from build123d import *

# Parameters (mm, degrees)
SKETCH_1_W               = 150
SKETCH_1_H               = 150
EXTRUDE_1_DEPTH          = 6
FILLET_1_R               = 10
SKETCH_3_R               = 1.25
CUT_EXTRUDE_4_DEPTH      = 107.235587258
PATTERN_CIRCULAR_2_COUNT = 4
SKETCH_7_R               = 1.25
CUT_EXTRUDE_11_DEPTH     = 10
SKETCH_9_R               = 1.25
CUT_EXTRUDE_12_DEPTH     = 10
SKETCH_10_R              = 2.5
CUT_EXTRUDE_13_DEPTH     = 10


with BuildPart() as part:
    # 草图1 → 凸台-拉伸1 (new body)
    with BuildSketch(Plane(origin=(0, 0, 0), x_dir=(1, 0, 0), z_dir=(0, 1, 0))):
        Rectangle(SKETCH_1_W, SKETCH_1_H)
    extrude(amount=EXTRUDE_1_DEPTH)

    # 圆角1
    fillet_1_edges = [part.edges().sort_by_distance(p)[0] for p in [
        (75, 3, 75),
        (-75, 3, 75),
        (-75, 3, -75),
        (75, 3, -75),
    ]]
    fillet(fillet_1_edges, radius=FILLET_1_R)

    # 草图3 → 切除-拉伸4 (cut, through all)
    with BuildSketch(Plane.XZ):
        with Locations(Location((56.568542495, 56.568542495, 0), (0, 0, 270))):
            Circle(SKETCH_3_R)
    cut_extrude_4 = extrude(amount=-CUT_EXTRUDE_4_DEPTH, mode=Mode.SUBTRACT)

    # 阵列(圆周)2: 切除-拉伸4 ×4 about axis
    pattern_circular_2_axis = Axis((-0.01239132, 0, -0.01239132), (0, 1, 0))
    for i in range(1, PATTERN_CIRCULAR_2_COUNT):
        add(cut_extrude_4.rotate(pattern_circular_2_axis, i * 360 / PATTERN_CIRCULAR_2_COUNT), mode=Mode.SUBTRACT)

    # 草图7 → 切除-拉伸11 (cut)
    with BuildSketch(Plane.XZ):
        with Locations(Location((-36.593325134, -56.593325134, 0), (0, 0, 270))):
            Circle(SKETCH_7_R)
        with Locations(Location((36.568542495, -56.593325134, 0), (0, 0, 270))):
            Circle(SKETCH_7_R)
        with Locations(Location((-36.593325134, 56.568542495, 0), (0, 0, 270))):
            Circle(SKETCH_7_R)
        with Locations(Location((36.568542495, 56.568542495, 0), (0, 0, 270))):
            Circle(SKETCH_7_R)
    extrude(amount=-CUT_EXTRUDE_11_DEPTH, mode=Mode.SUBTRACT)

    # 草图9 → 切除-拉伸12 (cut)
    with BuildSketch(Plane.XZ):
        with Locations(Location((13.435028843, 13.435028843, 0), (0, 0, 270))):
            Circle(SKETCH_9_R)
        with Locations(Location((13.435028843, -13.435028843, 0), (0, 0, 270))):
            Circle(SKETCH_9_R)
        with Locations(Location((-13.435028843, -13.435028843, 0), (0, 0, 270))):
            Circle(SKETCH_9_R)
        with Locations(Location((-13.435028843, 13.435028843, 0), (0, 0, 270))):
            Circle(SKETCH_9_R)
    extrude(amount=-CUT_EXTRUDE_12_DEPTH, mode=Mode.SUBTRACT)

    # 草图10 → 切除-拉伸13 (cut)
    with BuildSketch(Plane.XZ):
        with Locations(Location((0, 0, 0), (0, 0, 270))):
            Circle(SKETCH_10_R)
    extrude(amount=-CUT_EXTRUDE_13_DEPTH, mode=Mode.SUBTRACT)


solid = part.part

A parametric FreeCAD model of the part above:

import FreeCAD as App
import Part
import Sketcher
from FreeCAD import Vector
Q = App.Units.Quantity


def edges_at(feature, points):
    """Names of the edges that pass closest to the given points."""
    edges = feature.Shape.Edges
    near = lambda p: min(range(len(edges)), key=lambda i: edges[i].distToShape(Part.Vertex(*p))[0])
    return sorted({f"Edge{near(p) + 1}" for p in points})


def add_polygon(sketch, points):
    """Adds a closed chain of lines whose ends are joined by coincident constraints."""
    first, n = sketch.GeometryCount, len(points)
    for a, b in zip(points, points[1:] + points[:1]):
        sketch.addGeometry(Part.LineSegment(App.Vector(*a, 0), App.Vector(*b, 0)), False)
    for i in range(n):
        sketch.addConstraint(Sketcher.Constraint("Coincident", first + i, 2, first + (i + 1) % n, 1))

doc = App.newDocument("Part")
body = doc.addObject("PartDesign::Body", "Body")

sketch1 = doc.addObject("Sketcher::SketchObject", "Sketch")
body.addObject(sketch1)
sketch1.AttachmentSupport = (doc.XZ_Plane, [""])
sketch1.MapMode = "FlatFace"
add_polygon(sketch1, [(-75, -75), (-75, 75), (75, 75), (75, -75)])
sketch1.addConstraint(Sketcher.Constraint("Vertical", 0))
sketch1.addConstraint(Sketcher.Constraint("Horizontal", 1))
sketch1.addConstraint(Sketcher.Constraint("Vertical", 2))
sketch1.addConstraint(Sketcher.Constraint("Horizontal", 3))
sketch1.addConstraint(Sketcher.Constraint("Symmetric", 0, 2, 2, 2, -1, 1))
sketch1.addConstraint(Sketcher.Constraint("Equal", 3, 0))
sketch1.addConstraint(Sketcher.Constraint("DistanceX", 1, 1, 1, 2, Q("150 mm")))
pad1 = doc.addObject("PartDesign::Pad", "Pad")
body.addObject(pad1)
pad1.Profile = sketch1
pad1.Length = 6
pad1.Reversed = True
doc.recompute()

fillet = doc.addObject("PartDesign::Fillet", "Fillet")
body.addObject(fillet)
fillet.Base = (pad1, edges_at(pad1, [
    (75, 3, 75),
    (-75, 3, 75),
    (-75, 3, -75),
    (75, 3, -75),
]))
fillet.Radius = 10

sketch2 = doc.addObject("Sketcher::SketchObject", "Sketch001")
body.addObject(sketch2)
sketch2.AttachmentSupport = (doc.XZ_Plane, [""])
sketch2.MapMode = "FlatFace"
sketch2.addGeometry(Part.Circle(Vector(56.6, 56.6, 0), Vector(0, 0, 1), 1.2), False)
sketch2.addConstraint(Sketcher.Constraint("Diameter", 0, Q("2.5 mm")))
sketch2.addConstraint(Sketcher.Constraint("DistanceX", -1, 1, 0, 3, Q("56.568542 mm")))
sketch2.addConstraint(Sketcher.Constraint("DistanceY", -1, 1, 0, 3, Q("56.568542 mm")))
pocket1 = doc.addObject("PartDesign::Pocket", "Pocket")
body.addObject(pocket1)
pocket1.Profile = sketch2
pocket1.Type = "ThroughAll"
doc.recompute()

datumline = doc.addObject("PartDesign::Line", "DatumLine")
body.addObject(datumline)
datumline.Placement = App.Placement(Vector(-0.012391, 0, -0.012391), App.Rotation(Vector(0, 0, 1), Vector(0, 1, 0)))
polarpattern = doc.addObject("PartDesign::PolarPattern", "PolarPattern")
body.addObject(polarpattern)
polarpattern.Originals = [pocket1]
polarpattern.Axis = (datumline, [""])
polarpattern.Angle = 360
polarpattern.Occurrences = 4
body.Tip = polarpattern

sketch3 = doc.addObject("Sketcher::SketchObject", "Sketch002")
body.addObject(sketch3)
sketch3.AttachmentSupport = (doc.XZ_Plane, [""])
sketch3.MapMode = "FlatFace"
sketch3.addGeometry(Part.Circle(Vector(-36.6, -56.6, 0), Vector(0, 0, 1), 1.2), False)
sketch3.addGeometry(Part.Circle(Vector(36.6, -56.6, 0), Vector(0, 0, 1), 1.2), False)
sketch3.addGeometry(Part.Circle(Vector(-36.6, 56.6, 0), Vector(0, 0, 1), 1.2), False)
sketch3.addGeometry(Part.Circle(Vector(36.6, 56.6, 0), Vector(0, 0, 1), 1.2), False)
sketch3.addConstraint(Sketcher.Constraint("Equal", 0, 1))
sketch3.addConstraint(Sketcher.Constraint("Equal", 1, 2))
sketch3.addConstraint(Sketcher.Constraint("Equal", 2, 3))
sketch3.addConstraint(Sketcher.Constraint("Horizontal", 0, 3, 1, 3))
sketch3.addConstraint(Sketcher.Constraint("Horizontal", 2, 3, 3, 3))
sketch3.addConstraint(Sketcher.Constraint("Vertical", 0, 3, 2, 3))
sketch3.addConstraint(Sketcher.Constraint("Vertical", 1, 3, 3, 3))
sketch3.addConstraint(Sketcher.Constraint("Diameter", 0, Q("2.5 mm")))
sketch3.addConstraint(Sketcher.Constraint("DistanceX", 0, 3, -1, 1, Q("36.593325 mm")))
sketch3.addConstraint(Sketcher.Constraint("DistanceY", 0, 3, -1, 1, Q("56.593325 mm")))
sketch3.addConstraint(Sketcher.Constraint("DistanceX", -1, 1, 1, 3, Q("36.568542 mm")))
sketch3.addConstraint(Sketcher.Constraint("DistanceY", -1, 1, 2, 3, Q("56.568542 mm")))
pocket2 = doc.addObject("PartDesign::Pocket", "Pocket001")
body.addObject(pocket2)
pocket2.Profile = sketch3
pocket2.Length = 10

sketch4 = doc.addObject("Sketcher::SketchObject", "Sketch003")
body.addObject(sketch4)
sketch4.AttachmentSupport = (doc.XZ_Plane, [""])
sketch4.MapMode = "FlatFace"
sketch4.addGeometry(Part.Circle(Vector(13.4, 13.4, 0), Vector(0, 0, 1), 1.2), False)
sketch4.addGeometry(Part.Circle(Vector(13.4, -13.4, 0), Vector(0, 0, 1), 1.2), False)
sketch4.addGeometry(Part.Circle(Vector(-13.4, -13.4, 0), Vector(0, 0, 1), 1.2), False)
sketch4.addGeometry(Part.Circle(Vector(-13.4, 13.4, 0), Vector(0, 0, 1), 1.2), False)
sketch4.addConstraint(Sketcher.Constraint("Equal", 0, 1))
sketch4.addConstraint(Sketcher.Constraint("Equal", 1, 2))
sketch4.addConstraint(Sketcher.Constraint("Equal", 2, 3))
sketch4.addConstraint(Sketcher.Constraint("Symmetric", 0, 3, 2, 3, -1, 1))
sketch4.addConstraint(Sketcher.Constraint("Symmetric", 1, 3, 3, 3, -1, 1))
sketch4.addConstraint(Sketcher.Constraint("Symmetric", 1, 3, 2, 3, -2))
sketch4.addConstraint(Sketcher.Constraint("Diameter", 0, Q("2.5 mm")))
sketch4.addConstraint(Sketcher.Constraint("DistanceX", -1, 1, 0, 3, Q("13.435029 mm")))
sketch4.addConstraint(Sketcher.Constraint("DistanceY", -1, 1, 0, 3, Q("13.435029 mm")))
pocket3 = doc.addObject("PartDesign::Pocket", "Pocket002")
body.addObject(pocket3)
pocket3.Profile = sketch4
pocket3.Length = 10

sketch5 = doc.addObject("Sketcher::SketchObject", "Sketch004")
body.addObject(sketch5)
sketch5.AttachmentSupport = (doc.XZ_Plane, [""])
sketch5.MapMode = "FlatFace"
sketch5.addGeometry(Part.Circle(Vector(0, 0, 0), Vector(0, 0, 1), 2.5), False)
sketch5.addConstraint(Sketcher.Constraint("Coincident", 0, 3, -1, 1))
sketch5.addConstraint(Sketcher.Constraint("Diameter", 0, Q("5 mm")))
pocket4 = doc.addObject("PartDesign::Pocket", "Pocket003")
body.addObject(pocket4)
pocket4.Profile = sketch5
pocket4.Length = 10

doc.recompute()
